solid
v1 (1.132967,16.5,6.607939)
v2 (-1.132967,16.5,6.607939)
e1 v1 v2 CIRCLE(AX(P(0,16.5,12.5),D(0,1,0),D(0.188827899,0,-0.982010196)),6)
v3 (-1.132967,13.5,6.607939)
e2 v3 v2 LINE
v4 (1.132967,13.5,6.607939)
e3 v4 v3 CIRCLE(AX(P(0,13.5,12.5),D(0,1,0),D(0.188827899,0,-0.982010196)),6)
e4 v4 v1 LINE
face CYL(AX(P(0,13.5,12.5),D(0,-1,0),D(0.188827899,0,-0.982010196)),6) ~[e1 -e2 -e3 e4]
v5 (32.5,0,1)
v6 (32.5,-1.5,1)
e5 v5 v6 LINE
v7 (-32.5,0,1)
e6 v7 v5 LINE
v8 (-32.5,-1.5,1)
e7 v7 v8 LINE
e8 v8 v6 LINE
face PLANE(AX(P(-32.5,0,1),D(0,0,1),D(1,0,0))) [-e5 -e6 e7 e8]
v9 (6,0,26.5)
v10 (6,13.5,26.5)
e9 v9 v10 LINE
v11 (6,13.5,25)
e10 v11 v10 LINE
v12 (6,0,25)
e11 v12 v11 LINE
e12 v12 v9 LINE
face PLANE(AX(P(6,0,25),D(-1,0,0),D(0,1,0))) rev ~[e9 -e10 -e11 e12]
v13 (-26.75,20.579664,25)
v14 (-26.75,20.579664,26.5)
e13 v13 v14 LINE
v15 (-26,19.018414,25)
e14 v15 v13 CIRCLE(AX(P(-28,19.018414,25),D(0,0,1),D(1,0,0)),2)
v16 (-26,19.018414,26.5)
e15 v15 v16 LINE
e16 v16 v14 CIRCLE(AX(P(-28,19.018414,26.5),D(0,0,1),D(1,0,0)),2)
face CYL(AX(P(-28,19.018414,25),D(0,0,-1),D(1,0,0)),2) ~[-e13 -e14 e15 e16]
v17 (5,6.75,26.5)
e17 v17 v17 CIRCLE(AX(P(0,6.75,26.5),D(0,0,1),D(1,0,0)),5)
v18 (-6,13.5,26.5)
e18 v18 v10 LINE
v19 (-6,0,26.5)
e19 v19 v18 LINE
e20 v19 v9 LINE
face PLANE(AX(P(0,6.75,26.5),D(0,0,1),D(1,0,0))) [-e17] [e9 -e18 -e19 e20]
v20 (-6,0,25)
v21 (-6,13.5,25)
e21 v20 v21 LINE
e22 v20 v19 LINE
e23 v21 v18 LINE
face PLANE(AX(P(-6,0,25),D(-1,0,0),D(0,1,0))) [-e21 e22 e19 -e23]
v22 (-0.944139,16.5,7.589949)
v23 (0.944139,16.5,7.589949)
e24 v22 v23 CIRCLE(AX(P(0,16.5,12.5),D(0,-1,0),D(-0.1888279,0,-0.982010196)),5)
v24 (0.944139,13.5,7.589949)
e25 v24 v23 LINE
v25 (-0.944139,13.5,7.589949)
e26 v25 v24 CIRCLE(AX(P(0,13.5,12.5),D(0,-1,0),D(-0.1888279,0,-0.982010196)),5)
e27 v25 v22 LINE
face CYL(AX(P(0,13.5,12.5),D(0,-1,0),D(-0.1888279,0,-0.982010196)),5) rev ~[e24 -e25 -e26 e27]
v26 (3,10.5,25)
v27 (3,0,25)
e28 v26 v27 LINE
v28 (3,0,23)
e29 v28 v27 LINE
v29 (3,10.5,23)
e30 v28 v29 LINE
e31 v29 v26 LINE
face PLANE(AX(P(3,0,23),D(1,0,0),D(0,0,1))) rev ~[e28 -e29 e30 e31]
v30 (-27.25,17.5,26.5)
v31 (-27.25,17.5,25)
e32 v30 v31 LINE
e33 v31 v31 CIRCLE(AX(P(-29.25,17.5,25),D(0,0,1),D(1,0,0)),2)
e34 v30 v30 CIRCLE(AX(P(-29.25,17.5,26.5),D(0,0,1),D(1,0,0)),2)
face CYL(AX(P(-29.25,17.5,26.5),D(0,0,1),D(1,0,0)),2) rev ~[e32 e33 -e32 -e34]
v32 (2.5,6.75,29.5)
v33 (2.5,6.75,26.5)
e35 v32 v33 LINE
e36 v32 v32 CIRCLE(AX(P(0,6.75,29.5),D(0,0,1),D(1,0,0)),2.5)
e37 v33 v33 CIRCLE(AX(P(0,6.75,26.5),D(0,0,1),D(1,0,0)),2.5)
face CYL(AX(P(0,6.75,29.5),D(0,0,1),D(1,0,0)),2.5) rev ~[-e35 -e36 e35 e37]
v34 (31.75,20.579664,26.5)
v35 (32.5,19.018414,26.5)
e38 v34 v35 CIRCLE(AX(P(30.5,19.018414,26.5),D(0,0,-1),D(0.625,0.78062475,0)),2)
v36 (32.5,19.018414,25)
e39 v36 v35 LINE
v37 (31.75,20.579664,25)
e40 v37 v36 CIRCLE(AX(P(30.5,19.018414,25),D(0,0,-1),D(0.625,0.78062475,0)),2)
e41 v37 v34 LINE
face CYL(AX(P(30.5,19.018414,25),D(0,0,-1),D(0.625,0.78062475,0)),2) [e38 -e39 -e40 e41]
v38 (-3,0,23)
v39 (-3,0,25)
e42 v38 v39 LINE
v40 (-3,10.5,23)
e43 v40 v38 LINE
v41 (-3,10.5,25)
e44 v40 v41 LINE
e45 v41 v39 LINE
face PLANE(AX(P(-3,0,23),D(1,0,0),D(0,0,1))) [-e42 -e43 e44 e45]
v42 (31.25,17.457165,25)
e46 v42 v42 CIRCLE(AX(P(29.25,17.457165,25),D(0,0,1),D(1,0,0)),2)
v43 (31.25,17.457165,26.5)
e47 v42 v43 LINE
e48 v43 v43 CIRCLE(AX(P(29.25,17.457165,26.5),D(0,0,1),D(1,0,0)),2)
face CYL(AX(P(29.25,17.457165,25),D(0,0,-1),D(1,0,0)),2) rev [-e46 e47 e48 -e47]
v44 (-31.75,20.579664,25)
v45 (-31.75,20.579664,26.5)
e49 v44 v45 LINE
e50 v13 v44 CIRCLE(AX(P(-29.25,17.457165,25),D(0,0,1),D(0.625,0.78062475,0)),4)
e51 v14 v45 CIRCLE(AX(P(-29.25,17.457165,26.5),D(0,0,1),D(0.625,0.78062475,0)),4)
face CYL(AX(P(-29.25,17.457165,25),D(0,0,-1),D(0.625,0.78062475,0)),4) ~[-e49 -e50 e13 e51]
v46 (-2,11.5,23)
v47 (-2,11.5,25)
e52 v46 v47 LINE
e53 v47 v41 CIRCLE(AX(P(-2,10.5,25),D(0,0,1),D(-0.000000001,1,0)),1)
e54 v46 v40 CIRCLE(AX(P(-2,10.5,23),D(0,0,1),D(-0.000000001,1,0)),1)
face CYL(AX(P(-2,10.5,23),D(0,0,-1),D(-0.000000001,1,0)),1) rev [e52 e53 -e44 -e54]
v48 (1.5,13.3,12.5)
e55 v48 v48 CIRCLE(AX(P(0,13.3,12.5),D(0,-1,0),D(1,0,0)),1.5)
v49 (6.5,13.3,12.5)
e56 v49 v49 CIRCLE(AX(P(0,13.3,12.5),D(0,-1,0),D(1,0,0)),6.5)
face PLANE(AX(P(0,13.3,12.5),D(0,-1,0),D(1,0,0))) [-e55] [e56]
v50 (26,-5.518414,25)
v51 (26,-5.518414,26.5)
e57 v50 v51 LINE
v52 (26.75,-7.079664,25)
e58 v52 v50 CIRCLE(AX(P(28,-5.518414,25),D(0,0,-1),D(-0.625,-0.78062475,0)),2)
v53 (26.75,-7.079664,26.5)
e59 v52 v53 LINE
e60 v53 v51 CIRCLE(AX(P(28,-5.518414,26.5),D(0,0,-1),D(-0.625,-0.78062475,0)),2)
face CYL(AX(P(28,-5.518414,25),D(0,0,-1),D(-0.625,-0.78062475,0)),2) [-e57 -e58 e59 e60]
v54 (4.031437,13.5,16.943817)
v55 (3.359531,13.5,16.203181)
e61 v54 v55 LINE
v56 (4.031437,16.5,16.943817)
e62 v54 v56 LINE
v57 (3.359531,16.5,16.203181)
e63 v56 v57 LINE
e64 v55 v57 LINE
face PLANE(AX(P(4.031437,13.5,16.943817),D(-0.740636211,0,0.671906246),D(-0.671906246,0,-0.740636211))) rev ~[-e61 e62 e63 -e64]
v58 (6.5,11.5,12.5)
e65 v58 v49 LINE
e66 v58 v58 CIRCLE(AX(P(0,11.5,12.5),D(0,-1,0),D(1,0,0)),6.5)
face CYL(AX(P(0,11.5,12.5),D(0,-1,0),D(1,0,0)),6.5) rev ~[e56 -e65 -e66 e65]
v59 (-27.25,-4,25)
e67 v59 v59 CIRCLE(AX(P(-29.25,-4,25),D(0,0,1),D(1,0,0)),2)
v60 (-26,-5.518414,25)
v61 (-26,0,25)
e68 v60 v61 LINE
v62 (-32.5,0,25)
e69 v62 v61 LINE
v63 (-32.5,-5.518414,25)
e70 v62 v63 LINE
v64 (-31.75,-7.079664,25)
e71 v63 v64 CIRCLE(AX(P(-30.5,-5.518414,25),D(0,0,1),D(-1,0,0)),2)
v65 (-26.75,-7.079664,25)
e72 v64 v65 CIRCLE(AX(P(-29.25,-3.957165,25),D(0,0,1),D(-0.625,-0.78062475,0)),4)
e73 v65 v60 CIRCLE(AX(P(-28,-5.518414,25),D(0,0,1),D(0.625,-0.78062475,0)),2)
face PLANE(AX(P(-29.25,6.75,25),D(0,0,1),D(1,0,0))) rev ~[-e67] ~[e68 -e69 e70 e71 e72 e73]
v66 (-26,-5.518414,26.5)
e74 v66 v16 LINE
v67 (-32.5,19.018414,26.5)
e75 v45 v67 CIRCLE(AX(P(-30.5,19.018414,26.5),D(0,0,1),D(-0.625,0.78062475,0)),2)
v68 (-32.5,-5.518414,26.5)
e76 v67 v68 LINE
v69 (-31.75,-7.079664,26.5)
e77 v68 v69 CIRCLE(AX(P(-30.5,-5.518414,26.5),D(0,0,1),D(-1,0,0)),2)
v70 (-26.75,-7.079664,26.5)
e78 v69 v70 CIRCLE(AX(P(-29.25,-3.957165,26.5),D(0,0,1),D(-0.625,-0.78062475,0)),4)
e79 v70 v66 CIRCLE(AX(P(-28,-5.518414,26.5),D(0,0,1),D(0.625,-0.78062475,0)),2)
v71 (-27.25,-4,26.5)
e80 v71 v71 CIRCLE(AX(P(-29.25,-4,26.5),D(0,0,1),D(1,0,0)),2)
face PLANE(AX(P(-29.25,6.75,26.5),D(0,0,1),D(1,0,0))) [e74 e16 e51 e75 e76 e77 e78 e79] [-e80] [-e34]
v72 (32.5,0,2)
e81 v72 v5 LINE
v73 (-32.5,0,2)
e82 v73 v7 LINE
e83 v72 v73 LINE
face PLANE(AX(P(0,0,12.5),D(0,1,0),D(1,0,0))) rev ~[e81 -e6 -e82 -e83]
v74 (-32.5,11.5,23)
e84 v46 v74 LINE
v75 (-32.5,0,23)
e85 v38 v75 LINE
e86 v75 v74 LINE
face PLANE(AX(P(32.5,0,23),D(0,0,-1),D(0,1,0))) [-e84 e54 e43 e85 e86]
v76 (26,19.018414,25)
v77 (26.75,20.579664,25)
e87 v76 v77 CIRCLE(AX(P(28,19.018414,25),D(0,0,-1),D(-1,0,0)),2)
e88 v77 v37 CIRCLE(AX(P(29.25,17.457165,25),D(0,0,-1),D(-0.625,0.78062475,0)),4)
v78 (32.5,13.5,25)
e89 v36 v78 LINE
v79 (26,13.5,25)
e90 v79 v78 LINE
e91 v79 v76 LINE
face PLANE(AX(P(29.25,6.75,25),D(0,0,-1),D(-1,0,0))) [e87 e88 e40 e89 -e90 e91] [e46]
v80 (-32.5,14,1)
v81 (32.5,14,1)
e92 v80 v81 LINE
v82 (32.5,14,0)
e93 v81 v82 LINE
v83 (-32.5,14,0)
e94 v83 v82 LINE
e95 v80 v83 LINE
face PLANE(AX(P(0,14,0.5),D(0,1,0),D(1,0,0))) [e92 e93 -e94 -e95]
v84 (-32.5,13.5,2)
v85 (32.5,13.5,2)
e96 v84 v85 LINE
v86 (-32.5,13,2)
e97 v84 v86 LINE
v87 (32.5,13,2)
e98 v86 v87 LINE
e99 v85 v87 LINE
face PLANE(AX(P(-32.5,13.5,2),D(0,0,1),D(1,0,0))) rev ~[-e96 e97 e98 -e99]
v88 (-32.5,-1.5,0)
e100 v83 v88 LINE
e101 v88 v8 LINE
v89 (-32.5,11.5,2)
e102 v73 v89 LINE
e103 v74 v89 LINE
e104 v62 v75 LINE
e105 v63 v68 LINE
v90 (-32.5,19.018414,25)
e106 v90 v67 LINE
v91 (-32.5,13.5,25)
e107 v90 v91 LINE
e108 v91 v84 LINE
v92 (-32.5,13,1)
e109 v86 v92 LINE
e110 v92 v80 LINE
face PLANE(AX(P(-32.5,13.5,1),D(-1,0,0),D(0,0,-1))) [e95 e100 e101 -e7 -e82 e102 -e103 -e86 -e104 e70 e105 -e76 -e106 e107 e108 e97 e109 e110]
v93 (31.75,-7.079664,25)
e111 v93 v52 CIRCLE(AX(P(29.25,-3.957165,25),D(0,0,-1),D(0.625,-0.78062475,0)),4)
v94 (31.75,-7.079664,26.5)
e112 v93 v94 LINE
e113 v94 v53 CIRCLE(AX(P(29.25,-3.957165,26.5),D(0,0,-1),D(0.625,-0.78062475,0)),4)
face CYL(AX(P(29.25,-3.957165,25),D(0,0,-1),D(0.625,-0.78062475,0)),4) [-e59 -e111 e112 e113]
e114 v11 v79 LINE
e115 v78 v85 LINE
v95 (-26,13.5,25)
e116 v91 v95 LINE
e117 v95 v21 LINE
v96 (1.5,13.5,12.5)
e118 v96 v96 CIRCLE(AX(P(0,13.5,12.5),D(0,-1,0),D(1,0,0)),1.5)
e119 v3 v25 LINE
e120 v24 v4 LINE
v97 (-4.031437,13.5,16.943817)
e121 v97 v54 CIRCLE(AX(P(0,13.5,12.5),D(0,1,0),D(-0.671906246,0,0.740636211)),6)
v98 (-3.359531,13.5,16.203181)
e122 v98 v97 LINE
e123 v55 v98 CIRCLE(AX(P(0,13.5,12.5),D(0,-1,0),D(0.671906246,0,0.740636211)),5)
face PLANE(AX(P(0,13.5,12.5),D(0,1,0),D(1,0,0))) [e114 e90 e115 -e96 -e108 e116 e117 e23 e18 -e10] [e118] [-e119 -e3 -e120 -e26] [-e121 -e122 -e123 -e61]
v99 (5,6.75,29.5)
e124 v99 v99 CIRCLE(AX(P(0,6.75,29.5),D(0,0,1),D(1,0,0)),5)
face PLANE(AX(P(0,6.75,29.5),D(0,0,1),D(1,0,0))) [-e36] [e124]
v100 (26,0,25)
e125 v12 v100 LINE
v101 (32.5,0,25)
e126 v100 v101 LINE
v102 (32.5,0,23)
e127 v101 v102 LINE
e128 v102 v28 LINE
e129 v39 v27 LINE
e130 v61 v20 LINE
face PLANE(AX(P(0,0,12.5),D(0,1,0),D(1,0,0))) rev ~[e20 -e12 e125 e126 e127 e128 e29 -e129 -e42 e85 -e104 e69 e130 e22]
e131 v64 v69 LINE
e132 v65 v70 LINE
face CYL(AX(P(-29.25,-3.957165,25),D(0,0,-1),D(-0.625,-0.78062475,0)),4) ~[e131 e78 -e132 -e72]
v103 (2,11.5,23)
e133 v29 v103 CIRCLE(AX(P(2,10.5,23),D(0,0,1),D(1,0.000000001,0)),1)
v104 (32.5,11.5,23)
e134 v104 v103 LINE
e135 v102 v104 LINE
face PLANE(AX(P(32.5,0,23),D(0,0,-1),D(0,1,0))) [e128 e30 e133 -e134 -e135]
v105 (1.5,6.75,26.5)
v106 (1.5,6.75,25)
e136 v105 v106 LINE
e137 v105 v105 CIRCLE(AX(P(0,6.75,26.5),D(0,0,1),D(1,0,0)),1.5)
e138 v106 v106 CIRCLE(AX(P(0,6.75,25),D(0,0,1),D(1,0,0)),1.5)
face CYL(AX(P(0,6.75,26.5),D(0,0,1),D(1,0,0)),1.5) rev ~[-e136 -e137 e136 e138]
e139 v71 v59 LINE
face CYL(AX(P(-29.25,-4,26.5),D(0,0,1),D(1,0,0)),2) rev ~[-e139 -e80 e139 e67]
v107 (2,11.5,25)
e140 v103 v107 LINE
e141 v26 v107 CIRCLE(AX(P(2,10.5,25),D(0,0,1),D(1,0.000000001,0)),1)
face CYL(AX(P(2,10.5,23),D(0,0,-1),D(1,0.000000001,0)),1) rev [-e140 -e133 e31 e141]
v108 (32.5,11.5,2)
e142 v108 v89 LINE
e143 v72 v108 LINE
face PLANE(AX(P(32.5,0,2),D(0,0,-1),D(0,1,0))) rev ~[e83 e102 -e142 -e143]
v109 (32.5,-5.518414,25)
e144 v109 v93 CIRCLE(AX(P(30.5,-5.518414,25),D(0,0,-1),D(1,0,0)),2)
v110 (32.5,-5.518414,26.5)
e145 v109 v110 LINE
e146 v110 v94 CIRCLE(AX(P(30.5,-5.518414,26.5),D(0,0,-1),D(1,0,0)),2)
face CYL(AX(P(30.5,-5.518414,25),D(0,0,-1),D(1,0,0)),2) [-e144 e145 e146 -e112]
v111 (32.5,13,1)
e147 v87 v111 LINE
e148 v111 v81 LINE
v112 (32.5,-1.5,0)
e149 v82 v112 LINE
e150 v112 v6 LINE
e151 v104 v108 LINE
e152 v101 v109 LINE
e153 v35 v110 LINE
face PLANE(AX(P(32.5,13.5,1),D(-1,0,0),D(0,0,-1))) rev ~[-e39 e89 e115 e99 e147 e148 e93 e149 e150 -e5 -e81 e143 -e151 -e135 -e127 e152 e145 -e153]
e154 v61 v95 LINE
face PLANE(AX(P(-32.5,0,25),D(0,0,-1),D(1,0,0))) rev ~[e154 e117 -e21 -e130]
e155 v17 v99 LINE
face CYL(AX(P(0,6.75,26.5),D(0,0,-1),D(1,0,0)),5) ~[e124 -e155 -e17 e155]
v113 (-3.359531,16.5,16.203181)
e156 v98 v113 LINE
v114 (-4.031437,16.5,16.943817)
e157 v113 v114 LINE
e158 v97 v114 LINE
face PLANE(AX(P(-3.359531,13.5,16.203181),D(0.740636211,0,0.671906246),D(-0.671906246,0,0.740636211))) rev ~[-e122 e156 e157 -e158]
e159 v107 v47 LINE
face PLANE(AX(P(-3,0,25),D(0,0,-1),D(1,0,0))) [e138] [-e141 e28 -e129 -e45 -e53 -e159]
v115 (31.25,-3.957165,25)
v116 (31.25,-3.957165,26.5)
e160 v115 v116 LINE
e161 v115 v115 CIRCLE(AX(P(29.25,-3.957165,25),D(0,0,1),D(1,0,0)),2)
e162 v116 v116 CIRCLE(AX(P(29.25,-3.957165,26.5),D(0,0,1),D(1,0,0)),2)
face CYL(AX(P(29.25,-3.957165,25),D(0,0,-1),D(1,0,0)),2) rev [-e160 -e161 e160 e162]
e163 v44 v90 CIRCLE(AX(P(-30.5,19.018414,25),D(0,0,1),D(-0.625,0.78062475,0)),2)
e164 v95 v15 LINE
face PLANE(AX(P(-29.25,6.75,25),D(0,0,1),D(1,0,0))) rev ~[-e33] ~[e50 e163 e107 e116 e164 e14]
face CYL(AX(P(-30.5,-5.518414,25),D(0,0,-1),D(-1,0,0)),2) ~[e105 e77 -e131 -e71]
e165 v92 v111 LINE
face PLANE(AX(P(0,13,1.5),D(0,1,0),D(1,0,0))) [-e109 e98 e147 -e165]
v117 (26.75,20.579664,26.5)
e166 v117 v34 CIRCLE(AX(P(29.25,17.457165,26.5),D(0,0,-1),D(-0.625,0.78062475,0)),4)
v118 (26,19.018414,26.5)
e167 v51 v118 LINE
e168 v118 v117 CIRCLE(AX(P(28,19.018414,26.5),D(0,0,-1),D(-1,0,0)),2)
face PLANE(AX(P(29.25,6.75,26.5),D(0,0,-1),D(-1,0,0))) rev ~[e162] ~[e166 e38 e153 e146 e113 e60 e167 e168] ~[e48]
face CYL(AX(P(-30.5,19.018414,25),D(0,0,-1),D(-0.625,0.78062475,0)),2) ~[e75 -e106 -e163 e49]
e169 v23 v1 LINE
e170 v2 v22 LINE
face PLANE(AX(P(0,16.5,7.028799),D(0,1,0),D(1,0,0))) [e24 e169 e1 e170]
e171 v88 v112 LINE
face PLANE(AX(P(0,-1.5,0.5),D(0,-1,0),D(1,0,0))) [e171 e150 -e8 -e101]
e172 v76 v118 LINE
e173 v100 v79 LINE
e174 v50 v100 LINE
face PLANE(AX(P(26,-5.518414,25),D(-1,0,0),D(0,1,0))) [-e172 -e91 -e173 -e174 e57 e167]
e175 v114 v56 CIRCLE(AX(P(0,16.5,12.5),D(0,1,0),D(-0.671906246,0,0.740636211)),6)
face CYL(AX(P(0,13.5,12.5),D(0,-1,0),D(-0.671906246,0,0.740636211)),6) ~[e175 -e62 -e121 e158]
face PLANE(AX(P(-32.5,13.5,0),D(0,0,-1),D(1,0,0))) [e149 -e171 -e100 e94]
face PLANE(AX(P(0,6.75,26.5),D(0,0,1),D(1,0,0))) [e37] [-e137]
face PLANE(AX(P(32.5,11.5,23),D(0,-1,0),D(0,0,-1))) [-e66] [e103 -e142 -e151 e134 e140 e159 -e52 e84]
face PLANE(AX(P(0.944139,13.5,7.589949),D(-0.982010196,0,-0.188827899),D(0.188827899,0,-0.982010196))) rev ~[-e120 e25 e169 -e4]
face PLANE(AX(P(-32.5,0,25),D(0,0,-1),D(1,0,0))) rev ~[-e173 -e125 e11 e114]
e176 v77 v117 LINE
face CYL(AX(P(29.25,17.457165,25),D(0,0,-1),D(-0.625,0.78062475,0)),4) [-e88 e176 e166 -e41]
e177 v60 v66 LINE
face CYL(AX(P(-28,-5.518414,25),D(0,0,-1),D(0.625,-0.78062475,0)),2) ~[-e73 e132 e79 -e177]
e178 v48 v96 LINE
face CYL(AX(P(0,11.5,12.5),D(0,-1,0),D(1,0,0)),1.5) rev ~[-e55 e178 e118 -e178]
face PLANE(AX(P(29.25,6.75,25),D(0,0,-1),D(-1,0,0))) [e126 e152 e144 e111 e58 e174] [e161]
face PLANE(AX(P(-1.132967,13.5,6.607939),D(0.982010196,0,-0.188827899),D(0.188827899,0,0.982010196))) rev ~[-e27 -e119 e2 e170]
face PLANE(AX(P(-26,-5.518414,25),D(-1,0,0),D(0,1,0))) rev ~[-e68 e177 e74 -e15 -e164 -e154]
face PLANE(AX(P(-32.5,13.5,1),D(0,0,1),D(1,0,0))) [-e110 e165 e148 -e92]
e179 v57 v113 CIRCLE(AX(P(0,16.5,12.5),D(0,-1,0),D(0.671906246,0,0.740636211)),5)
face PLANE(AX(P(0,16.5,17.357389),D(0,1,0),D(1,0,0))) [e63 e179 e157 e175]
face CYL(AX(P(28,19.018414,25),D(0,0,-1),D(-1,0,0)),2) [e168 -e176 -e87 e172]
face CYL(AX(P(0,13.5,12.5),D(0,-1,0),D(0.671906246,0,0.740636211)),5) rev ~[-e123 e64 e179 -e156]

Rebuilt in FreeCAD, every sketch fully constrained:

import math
import FreeCAD as App
import Part
import Sketcher

V = App.Vector


def add_polygon(sketch, points):
    """Adds a closed chain of lines whose ends are joined by coincident constraints."""
    first, n = sketch.GeometryCount, len(points)
    for a, b in zip(points, points[1:] + points[:1]):
        sketch.addGeometry(Part.LineSegment(App.Vector(*a, 0), App.Vector(*b, 0)), False)
    for i in range(n):
        sketch.addConstraint(Sketcher.Constraint("Coincident", first + i, 2, first + (i + 1) % n, 1))

doc = App.newDocument("Part")
params = doc.addObject("Spreadsheet::Sheet", "Params")
for row, (alias, value) in enumerate([
    ("sketch1_width", "65 mm"),
    ("sketch1_height", "25 mm"),
    ("pad1_length", "13.5 mm"),
    ("sketch2_height", "21 mm"),
    ("sketch2_width", "11.5 mm"),
    ("pocket1_length", "65 mm"),
    ("sketch3_diameter", "4 mm"),
    ("sketch3_radius", "4 mm"),
    ("pad2_length", "1.5 mm"),
    ("sketch4_width", "12 mm"),
    ("sketch4_height", "13.5 mm"),
    ("pad3_length", "1.5 mm"),
    ("sketch5_diameter", "10 mm"),
    ("pad4_length", "3 mm"),
    ("sketch6_diameter", "5 mm"),
    ("pocket2_length", "3 mm"),
    ("sketch7_width", "6 mm"),
    ("sketch7_height", "2 mm"),
    ("pocket3_length", "10 mm"),
    ("sketch8_diameter", "3 mm"),
    ("pocket4_length", "10 mm"),
    ("sketch9_diameter", "4 mm"),
    ("pocket5_length", "10 mm"),
    ("sketch10_radius", "1 mm"),
    ("sketch10_width", "6 mm"),
    ("sketch10_height", "0.5 mm"),
    ("pocket6_length", "2 mm"),
    ("sketch11_diameter", "3 mm"),
    ("pocket7_length", "2 mm"),
    ("sketch12_diameter", "13 mm"),
    ("pocket8_length", "1.8 mm"),
    ("sketch13_radius", "6 mm"),
    ("sketch13_radius2", "5 mm"),
    ("pad5_length", "3 mm"),
    ("sketch14_width", "65 mm"),
    ("sketch14_height", "1 mm"),
    ("pad6_length", "1.5 mm"),
    ("sketch15_width", "65 mm"),
    ("sketch15_height", "1 mm"),
    ("pad7_length", "0.5 mm"),
    ("sketch16_width", "65 mm"),
    ("sketch16_height", "1 mm"),
    ("pocket9_length", "0.5 mm"),
], start=1):
    params.set(f"A{row}", alias)
    params.set(f"B{row}", "=" + value)
    params.setAlias(f"B{row}", alias)

body = doc.addObject("PartDesign::Body", "Body")

sketch1 = body.newObject("Sketcher::SketchObject", "Sketch")
sketch1.AttachmentSupport = (doc.getObject("XZ_Plane"), [""])
sketch1.MapMode = "FlatFace"
add_polygon(sketch1, [(-32, 0), (-32, 25), (32, 25), (32, 0)])
sketch1.addConstraint([
    Sketcher.Constraint("Vertical", 0),
    Sketcher.Constraint("Horizontal", 1),
    Sketcher.Constraint("Vertical", 2),
    Sketcher.Constraint("Horizontal", 3),
    Sketcher.Constraint("Symmetric", 2, 2, 3, 2, -1, 1),
    Sketcher.Constraint("DistanceX", 1, 1, 1, 2, 65.0),
    Sketcher.Constraint("DistanceY", 0, 1, 0, 2, 25.0),
])
sketch1.setExpression("Constraints[9]", "Params.sketch1_width")
sketch1.setExpression("Constraints[10]", "Params.sketch1_height")
pad1 = body.newObject("PartDesign::Pad", "Pad")
pad1.Profile = sketch1
pad1.setExpression("Length", "Params.pad1_length")
pad1.Reversed = True

sketch2 = body.newObject("Sketcher::SketchObject", "Sketch001")
sketch2.AttachmentSupport = (doc.getObject("YZ_Plane"), [""])
sketch2.MapMode = "FlatFace"
sketch2.AttachmentOffset = App.Placement(V(0, 0, 32.5), App.Rotation())
add_polygon(sketch2, [(12, 23), (0, 23), (0, 2), (12, 2)])
sketch2.addConstraint([
    Sketcher.Constraint("Horizontal", 0),
    Sketcher.Constraint("Vertical", 1),
    Sketcher.Constraint("Horizontal", 2),
    Sketcher.Constraint("Vertical", 3),
    Sketcher.Constraint("PointOnObject", 0, 2, -2),
    Sketcher.Constraint("DistanceY", 1, 2, 1, 1, 21.0),
    Sketcher.Constraint("DistanceX", 0, 2, 0, 1, 11.5),
    Sketcher.Constraint("DistanceY", -1, 1, 0, 2, 23.0),
])
sketch2.setExpression("Constraints[9]", "Params.sketch2_height")
sketch2.setExpression("Constraints[10]", "Params.sketch2_width")
pocket1 = body.newObject("PartDesign::Pocket", "Pocket")
pocket1.Profile = sketch2
pocket1.setExpression("Length", "Params.pocket1_length")

sketch3 = body.newObject("Sketcher::SketchObject", "Sketch002")
sketch3.AttachmentSupport = (doc.getObject("XY_Plane"), [""])
sketch3.MapMode = "FlatFace"
sketch3.AttachmentOffset = App.Placement(V(0, 0, 25), App.Rotation())
sketch3.addGeometry([
    Part.ArcOfCircle(Part.Circle(V(30.5, -5.5, 0), V(0, 0, 1), 2), math.radians(-51), math.radians(0)),
    Part.LineSegment(V(32.5, -5.5, 0), V(32.5, 19, 0)),
    Part.ArcOfCircle(Part.Circle(V(30.5, 19, 0), V(0, 0, 1), 2), math.radians(0), math.radians(51)),
    Part.ArcOfCircle(Part.Circle(V(29.2, 17.5, 0), V(0, 0, 1), 4), math.radians(51), math.radians(129)),
    Part.ArcOfCircle(Part.Circle(V(28, 19, 0), V(0, 0, 1), 2), math.radians(129), math.radians(180)),
    Part.LineSegment(V(26, 19, 0), V(26, -5.5, 0)),
    Part.ArcOfCircle(Part.Circle(V(28, -5.5, 0), V(0, 0, 1), 2), math.radians(180), math.radians(231)),
    Part.ArcOfCircle(Part.Circle(V(29.2, -4, 0), V(0, 0, 1), 4), math.radians(-129), math.radians(-51)),
    Part.Circle(V(29.2, -4, 0), V(0, 0, 1), 2),
    Part.Circle(V(29.2, 17.5, 0), V(0, 0, 1), 2),
    Part.ArcOfCircle(Part.Circle(V(-30.5, -5.5, 0), V(0, 0, 1), 2), math.radians(180), math.radians(231)),
    Part.ArcOfCircle(Part.Circle(V(-29.2, -4, 0), V(0, 0, 1), 4), math.radians(-129), math.radians(-51)),
    Part.ArcOfCircle(Part.Circle(V(-28, -5.5, 0), V(0, 0, 1), 2), math.radians(-51), math.radians(0)),
    Part.LineSegment(V(-26, -5.5, 0), V(-26, 19, 0)),
    Part.ArcOfCircle(Part.Circle(V(-28, 19, 0), V(0, 0, 1), 2), math.radians(0), math.radians(51)),
    Part.ArcOfCircle(Part.Circle(V(-29.2, 17.5, 0), V(0, 0, 1), 4), math.radians(51), math.radians(129)),
    Part.ArcOfCircle(Part.Circle(V(-30.5, 19, 0), V(0, 0, 1), 2), math.radians(129), math.radians(180)),
    Part.LineSegment(V(-32.5, 19, 0), V(-32.5, -5.5, 0)),
], False)
sketch3.addConstraint([
    Sketcher.Constraint("Tangent", 0, 2, 1, 1),
    Sketcher.Constraint("Tangent", 1, 2, 2, 1),
    Sketcher.Constraint("Tangent", 2, 2, 3, 1),
    Sketcher.Constraint("Tangent", 3, 2, 4, 1),
    Sketcher.Constraint("Tangent", 4, 2, 5, 1),
    Sketcher.Constraint("Tangent", 5, 2, 6, 1),
    Sketcher.Constraint("Tangent", 6, 2, 7, 1),
    Sketcher.Constraint("Tangent", 7, 2, 0, 1),
    Sketcher.Constraint("Tangent", 10, 2, 11, 1),
    Sketcher.Constraint("Tangent", 11, 2, 12, 1),
    Sketcher.Constraint("Tangent", 12, 2, 13, 1),
    Sketcher.Constraint("Tangent", 13, 2, 14, 1),
    Sketcher.Constraint("Tangent", 14, 2, 15, 1),
    Sketcher.Constraint("Tangent", 15, 2, 16, 1),
    Sketcher.Constraint("Tangent", 16, 2, 17, 1),
    Sketcher.Constraint("Tangent", 17, 2, 10, 1),
    Sketcher.Constraint("Vertical", 1),
    Sketcher.Constraint("Vertical", 5),
    Sketcher.Constraint("Vertical", 13),
    Sketcher.Constraint("Vertical", 17),
    Sketcher.Constraint("Coincident", 8, 3, 7, 3),
    Sketcher.Constraint("Coincident", 9, 3, 3, 3),
    Sketcher.Constraint("Equal", 0, 2),
    Sketcher.Constraint("Equal", 2, 4),
    Sketcher.Constraint("Equal", 4, 6),
    Sketcher.Constraint("Equal", 3, 7),
    Sketcher.Constraint("Equal", 6, 8),
    Sketcher.Constraint("Equal", 8, 9),
    Sketcher.Constraint("Equal", 9, 10),
    Sketcher.Constraint("Equal", 7, 11),
    Sketcher.Constraint("Equal", 10, 12),
    Sketcher.Constraint("Equal", 12, 14),
    Sketcher.Constraint("Equal", 11, 15),
    Sketcher.Constraint("Equal", 14, 16),
    Sketcher.Constraint("Symmetric", 0, 3, 10, 3, -2),
    Sketcher.Constraint("Symmetric", 6, 3, 12, 3, -2),
    Sketcher.Constraint("Symmetric", 3, 3, 15, 3, -2),
    Sketcher.Constraint("Horizontal", 2, 3, 4, 3),
    Sketcher.Constraint("Horizontal", 0, 3, 6, 3),
    Sketcher.Constraint("Diameter", 8, 4.0),
    Sketcher.Constraint("Radius", 3, 4.0),
    Sketcher.Constraint("DistanceX", -1, 1, 4, 3, 28.0),
    Sketcher.Constraint("DistanceX", 10, 3, 0, 3, 61.0),
    Sketcher.Constraint("DistanceY", 1, 1, 1, 2, 24.536828),
    Sketcher.Constraint("DistanceY", 0, 3, -1, 1, 5.518414),
])
sketch3.setExpression("Constraints[39]", "Params.sketch3_diameter")
sketch3.setExpression("Constraints[40]", "Params.sketch3_radius")
pad2 = body.newObject("PartDesign::Pad", "Pad001")
pad2.Profile = sketch3
pad2.setExpression("Length", "Params.pad2_length")

sketch4 = body.newObject("Sketcher::SketchObject", "Sketch003")
sketch4.AttachmentSupport = (doc.getObject("XY_Plane"), [""])
sketch4.MapMode = "FlatFace"
sketch4.AttachmentOffset = App.Placement(V(0, 0, 25), App.Rotation())
add_polygon(sketch4, [(-6, 14), (-6, 0), (6, 0), (6, 14)])
sketch4.addConstraint([
    Sketcher.Constraint("Vertical", 0),
    Sketcher.Constraint("Horizontal", 1),
    Sketcher.Constraint("Vertical", 2),
    Sketcher.Constraint("Horizontal", 3),
    Sketcher.Constraint("Symmetric", 0, 2, 1, 2, -1, 1),
    Sketcher.Constraint("DistanceX", 1, 1, 1, 2, 12.0),
    Sketcher.Constraint("DistanceY", 0, 2, 0, 1, 13.5),
])
sketch4.setExpression("Constraints[9]", "Params.sketch4_width")
sketch4.setExpression("Constraints[10]", "Params.sketch4_height")
pad3 = body.newObject("PartDesign::Pad", "Pad002")
pad3.Profile = sketch4
pad3.setExpression("Length", "Params.pad3_length")

sketch5 = body.newObject("Sketcher::SketchObject", "Sketch004")
sketch5.AttachmentSupport = (doc.getObject("XY_Plane"), [""])
sketch5.MapMode = "FlatFace"
sketch5.AttachmentOffset = App.Placement(V(0, 0, 26.5), App.Rotation())
sketch5.addGeometry(Part.Circle(V(0, 7, 0), V(0, 0, 1), 5), False)
sketch5.addConstraint([
    Sketcher.Constraint("PointOnObject", 0, 3, -2),
    Sketcher.Constraint("Diameter", 0, 10.0),
    Sketcher.Constraint("DistanceY", -1, 1, 0, 3, 6.75),
])
sketch5.setExpression("Constraints[1]", "Params.sketch5_diameter")
pad4 = body.newObject("PartDesign::Pad", "Pad003")
pad4.Profile = sketch5
pad4.setExpression("Length", "Params.pad4_length")

sketch6 = body.newObject("Sketcher::SketchObject", "Sketch005")
sketch6.AttachmentSupport = (doc.getObject("XY_Plane"), [""])
sketch6.MapMode = "FlatFace"
sketch6.AttachmentOffset = App.Placement(V(0, 0, 29.5), App.Rotation())
sketch6.addGeometry(Part.Circle(V(0, 6.8, 0), V(0, 0, 1), 2.5), False)
sketch6.addConstraint([
    Sketcher.Constraint("PointOnObject", 0, 3, -2),
    Sketcher.Constraint("Diameter", 0, 5.0),
    Sketcher.Constraint("DistanceY", -1, 1, 0, 3, 6.75),
])
sketch6.setExpression("Constraints[1]", "Params.sketch6_diameter")
pocket2 = body.newObject("PartDesign::Pocket", "Pocket001")
pocket2.Profile = sketch6
pocket2.setExpression("Length", "Params.pocket2_length")

sketch7 = body.newObject("Sketcher::SketchObject", "Sketch006")
sketch7.AttachmentSupport = (doc.getObject("XZ_Plane"), [""])
sketch7.MapMode = "FlatFace"
add_polygon(sketch7, [(-3, 25), (-3, 23), (3, 23), (3, 25)])
sketch7.addConstraint([
    Sketcher.Constraint("Vertical", 0),
    Sketcher.Constraint("Horizontal", 1),
    Sketcher.Constraint("Vertical", 2),
    Sketcher.Constraint("Horizontal", 3),
    Sketcher.Constraint("DistanceX", 1, 1, 1, 2, 6.0),
    Sketcher.Constraint("DistanceY", 0, 2, 0, 1, 2.0),
    Sketcher.Constraint("DistanceX", 0, 2, -1, 1, 3.0),
    Sketcher.Constraint("DistanceY", -1, 1, 0, 2, 23.0),
])
sketch7.setExpression("Constraints[8]", "Params.sketch7_width")
sketch7.setExpression("Constraints[9]", "Params.sketch7_height")
pocket3 = body.newObject("PartDesign::Pocket", "Pocket002")
pocket3.Profile = sketch7
pocket3.setExpression("Length", "Params.pocket3_length")

sketch8 = body.newObject("Sketcher::SketchObject", "Sketch007")
sketch8.AttachmentSupport = (doc.getObject("XY_Plane"), [""])
sketch8.MapMode = "FlatFace"
sketch8.AttachmentOffset = App.Placement(V(0, 0, 26.5), App.Rotation())
sketch8.addGeometry(Part.Circle(V(0, 6.8, 0), V(0, 0, 1), 1.5), False)
sketch8.addConstraint([
    Sketcher.Constraint("PointOnObject", 0, 3, -2),
    Sketcher.Constraint("Diameter", 0, 3.0),
    Sketcher.Constraint("DistanceY", -1, 1, 0, 3, 6.75),
])
sketch8.setExpression("Constraints[1]", "Params.sketch8_diameter")
pocket4 = body.newObject("PartDesign::Pocket", "Pocket003")
pocket4.Profile = sketch8
pocket4.setExpression("Length", "Params.pocket4_length")

sketch9 = body.newObject("Sketcher::SketchObject", "Sketch008")
sketch9.AttachmentSupport = (doc.getObject("XY_Plane"), [""])
sketch9.MapMode = "FlatFace"
sketch9.AttachmentOffset = App.Placement(V(0, 0, 26.5), App.Rotation())
sketch9.addGeometry([
    Part.Circle(V(-29.2, 17.5, 0), V(0, 0, 1), 2),
    Part.Circle(V(-29.2, -4, 0), V(0, 0, 1), 2),
], False)
sketch9.addConstraint([
    Sketcher.Constraint("Equal", 0, 1),
    Sketcher.Constraint("Vertical", 0, 3, 1, 3),
    Sketcher.Constraint("Diameter", 0, 4.0),
    Sketcher.Constraint("DistanceY", 1, 3, -1, 1, 4.0),
    Sketcher.Constraint("DistanceY", -1, 1, 0, 3, 17.5),
    Sketcher.Constraint("DistanceX", 0, 3, -1, 1, 29.25),
])
sketch9.setExpression("Constraints[2]", "Params.sketch9_diameter")
pocket5 = body.newObject("PartDesign::Pocket", "Pocket004")
pocket5.Profile = sketch9
pocket5.setExpression("Length", "Params.pocket5_length")

sketch10 = body.newObject("Sketcher::SketchObject", "Sketch009")
sketch10.AttachmentSupport = (doc.getObject("XY_Plane"), [""])
sketch10.MapMode = "FlatFace"
sketch10.AttachmentOffset = App.Placement(V(0, 0, 23), App.Rotation())
sketch10.addGeometry([
    Part.LineSegment(V(3, 10.5, 0), V(3, 10, 0)),
    Part.LineSegment(V(3, 10, 0), V(-3, 10, 0)),
    Part.LineSegment(V(-3, 10, 0), V(-3, 10.5, 0)),
    Part.ArcOfCircle(Part.Circle(V(-2, 10.5, 0), V(0, 0, 1), 1), math.radians(90), math.radians(180)),
    Part.LineSegment(V(-2, 11.5, 0), V(2, 11.5, 0)),
    Part.ArcOfCircle(Part.Circle(V(2, 10.5, 0), V(0, 0, 1), 1), math.radians(0), math.radians(90)),
], False)
sketch10.addConstraint([
    Sketcher.Constraint("Coincident", 0, 2, 1, 1),
    Sketcher.Constraint("Coincident", 1, 2, 2, 1),
    Sketcher.Constraint("Tangent", 2, 2, 3, 2),
    Sketcher.Constraint("Tangent", 3, 1, 4, 1),
    Sketcher.Constraint("Tangent", 4, 2, 5, 2),
    Sketcher.Constraint("Tangent", 5, 1, 0, 1),
    Sketcher.Constraint("Vertical", 0),
    Sketcher.Constraint("Horizontal", 1),
    Sketcher.Constraint("Vertical", 2),
    Sketcher.Constraint("Horizontal", 4),
    Sketcher.Constraint("Equal", 3, 5),
    Sketcher.Constraint("Radius", 3, 1.0),
    Sketcher.Constraint("DistanceX", 1, 2, 1, 1, 6.0),
    Sketcher.Constraint("DistanceY", 0, 2, 0, 1, 0.5),
    Sketcher.Constraint("DistanceX", 3, 3, -1, 1, 2.0),
    Sketcher.Constraint("DistanceY", -1, 1, 0, 2, 10.0),
])
sketch10.setExpression("Constraints[11]", "Params.sketch10_radius")
sketch10.setExpression("Constraints[12]", "Params.sketch10_width")
sketch10.setExpression("Constraints[13]", "Params.sketch10_height")
pocket6 = body.newObject("PartDesign::Pocket", "Pocket005")
pocket6.Profile = sketch10
pocket6.setExpression("Length", "Params.pocket6_length")
pocket6.Reversed = True

sketch11 = body.newObject("Sketcher::SketchObject", "Sketch010")
sketch11.AttachmentSupport = (doc.getObject("XZ_Plane"), [""])
sketch11.MapMode = "FlatFace"
sketch11.AttachmentOffset = App.Placement(V(0, 0, -11.5), App.Rotation())
sketch11.addGeometry(Part.Circle(V(0, 12.5, 0), V(0, 0, 1), 1.5), False)
sketch11.addConstraint([
    Sketcher.Constraint("PointOnObject", 0, 3, -2),
    Sketcher.Constraint("Diameter", 0, 3.0),
    Sketcher.Constraint("DistanceY", -1, 1, 0, 3, 12.5),
])
sketch11.setExpression("Constraints[1]", "Params.sketch11_diameter")
pocket7 = body.newObject("PartDesign::Pocket", "Pocket006")
pocket7.Profile = sketch11
pocket7.setExpression("Length", "Params.pocket7_length")

sketch12 = body.newObject("Sketcher::SketchObject", "Sketch011")
sketch12.AttachmentSupport = (doc.getObject("XZ_Plane"), [""])
sketch12.MapMode = "FlatFace"
sketch12.AttachmentOffset = App.Placement(V(0, 0, -11.5), App.Rotation())
sketch12.addGeometry(Part.Circle(V(0, 12, 0), V(0, 0, 1), 6), False)
sketch12.addConstraint([
    Sketcher.Constraint("PointOnObject", 0, 3, -2),
    Sketcher.Constraint("Diameter", 0, 13.0),
    Sketcher.Constraint("DistanceY", -1, 1, 0, 3, 12.5),
])
sketch12.setExpression("Constraints[1]", "Params.sketch12_diameter")
pocket8 = body.newObject("PartDesign::Pocket", "Pocket007")
pocket8.Profile = sketch12
pocket8.setExpression("Length", "Params.pocket8_length")

sketch13 = body.newObject("Sketcher::SketchObject", "Sketch012")
sketch13.AttachmentSupport = (doc.getObject("XZ_Plane"), [""])
sketch13.MapMode = "FlatFace"
sketch13.AttachmentOffset = App.Placement(V(0, 0, -13.5), App.Rotation())
sketch13.addGeometry([
    Part.LineSegment(V(-3.4, 16.2, 0), V(-4, 16.9, 0)),
    Part.ArcOfCircle(Part.Circle(V(0, 12.5, 0), V(0, 0, 1), 6), math.radians(48), math.radians(132)),
    Part.LineSegment(V(4, 16.9, 0), V(3.4, 16.2, 0)),
    Part.ArcOfCircle(Part.Circle(V(0, 12.5, 0), V(0, 0, 1), 5), math.radians(48), math.radians(132)),
    Part.LineSegment(V(-1.1, 6.6, 0), V(-0.9, 7.6, 0)),
    Part.ArcOfCircle(Part.Circle(V(0, 12.5, 0), V(0, 0, 1), 5), math.radians(-101), math.radians(-79)),
    Part.LineSegment(V(0.9, 7.6, 0), V(1.1, 6.6, 0)),
    Part.ArcOfCircle(Part.Circle(V(0, 12.5, 0), V(0, 0, 1), 6), math.radians(-101), math.radians(-79)),
], False)
sketch13.addConstraint([
    Sketcher.Constraint("Coincident", 0, 2, 1, 2),
    Sketcher.Constraint("Coincident", 1, 1, 2, 1),
    Sketcher.Constraint("Coincident", 2, 2, 3, 1),
    Sketcher.Constraint("Coincident", 3, 2, 0, 1),
    Sketcher.Constraint("Coincident", 4, 2, 5, 1),
    Sketcher.Constraint("Coincident", 5, 2, 6, 1),
    Sketcher.Constraint("Coincident", 6, 2, 7, 2),
    Sketcher.Constraint("Coincident", 7, 1, 4, 1),
    Sketcher.Constraint("Coincident", 3, 3, 1, 3),
    Sketcher.Constraint("Coincident", 5, 3, 1, 3),
    Sketcher.Constraint("Coincident", 7, 3, 1, 3),
    Sketcher.Constraint("Equal", 3, 5),
    Sketcher.Constraint("Equal", 1, 7),
    Sketcher.Constraint("Symmetric", 0, 2, 1, 1, -2),
    Sketcher.Constraint("Horizontal", 2, 2, 3, 2),
    Sketcher.Constraint("Horizontal", 4, 2, 5, 2),
    Sketcher.Constraint("Horizontal", 6, 2, 7, 1),
    Sketcher.Constraint("Radius", 1, 6.0),
    Sketcher.Constraint("Radius", 3, 5.0),
    Sketcher.Constraint("DistanceY", -1, 1, 1, 3, 12.5),
    Sketcher.Constraint("DistanceX", -1, 1, 2, 2, 3.359531),
    Sketcher.Constraint("DistanceX", 4, 2, -1, 1, 0.944139),
    Sketcher.Constraint("DistanceY", -1, 1, 6, 2, 6.607939),
    Sketcher.Constraint("DistanceX", 0, 2, -1, 1, 4.031437),
])
sketch13.setExpression("Constraints[17]", "Params.sketch13_radius")
sketch13.setExpression("Constraints[18]", "Params.sketch13_radius2")
pad5 = body.newObject("PartDesign::Pad", "Pad004")
pad5.Profile = sketch13
pad5.setExpression("Length", "Params.pad5_length")
pad5.Reversed = True

sketch14 = body.newObject("Sketcher::SketchObject", "Sketch013")
sketch14.AttachmentSupport = (doc.getObject("XZ_Plane"), [""])
sketch14.MapMode = "FlatFace"
add_polygon(sketch14, [(-32.5, 1), (-32.5, 0), (32.5, 0), (32.5, 1)])
sketch14.addConstraint([
    Sketcher.Constraint("Vertical", 0),
    Sketcher.Constraint("Horizontal", 1),
    Sketcher.Constraint("Vertical", 2),
    Sketcher.Constraint("Horizontal", 3),
    Sketcher.Constraint("Symmetric", 0, 2, 1, 2, -1, 1),
    Sketcher.Constraint("DistanceX", 1, 1, 1, 2, 65.0),
    Sketcher.Constraint("DistanceY", 0, 2, 0, 1, 1.0),
])
sketch14.setExpression("Constraints[9]", "Params.sketch14_width")
sketch14.setExpression("Constraints[10]", "Params.sketch14_height")
pad6 = body.newObject("PartDesign::Pad", "Pad005")
pad6.Profile = sketch14
pad6.setExpression("Length", "Params.pad6_length")

sketch15 = body.newObject("Sketcher::SketchObject", "Sketch014")
sketch15.AttachmentSupport = (doc.getObject("XZ_Plane"), [""])
sketch15.MapMode = "FlatFace"
sketch15.AttachmentOffset = App.Placement(V(0, 0, -13.5), App.Rotation())
add_polygon(sketch15, [(-32.5, 0), (-32.5, 1), (32.5, 1), (32.5, 0)])
sketch15.addConstraint([
    Sketcher.Constraint("Vertical", 0),
    Sketcher.Constraint("Horizontal", 1),
    Sketcher.Constraint("Vertical", 2),
    Sketcher.Constraint("Horizontal", 3),
    Sketcher.Constraint("Symmetric", 2, 2, 3, 2, -1, 1),
    Sketcher.Constraint("DistanceX", 1, 1, 1, 2, 65.0),
    Sketcher.Constraint("DistanceY", 0, 1, 0, 2, 1.0),
])
sketch15.setExpression("Constraints[9]", "Params.sketch15_width")
sketch15.setExpression("Constraints[10]", "Params.sketch15_height")
pad7 = body.newObject("PartDesign::Pad", "Pad006")
pad7.Profile = sketch15
pad7.setExpression("Length", "Params.pad7_length")
pad7.Reversed = True

sketch16 = body.newObject("Sketcher::SketchObject", "Sketch015")
sketch16.AttachmentSupport = (doc.getObject("XZ_Plane"), [""])
sketch16.MapMode = "FlatFace"
sketch16.AttachmentOffset = App.Placement(V(0, 0, -13.5), App.Rotation())
add_polygon(sketch16, [(-32.5, 1), (-32.5, 2), (32.5, 2), (32.5, 1)])
sketch16.addConstraint([
    Sketcher.Constraint("Vertical", 0),
    Sketcher.Constraint("Horizontal", 1),
    Sketcher.Constraint("Vertical", 2),
    Sketcher.Constraint("Horizontal", 3),
    Sketcher.Constraint("DistanceX", 1, 1, 1, 2, 65.0),
    Sketcher.Constraint("DistanceY", 0, 1, 0, 2, 1.0),
    Sketcher.Constraint("DistanceY", -1, 1, 0, 2, 2.0),
    Sketcher.Constraint("DistanceX", 0, 2, -1, 1, 32.5),
])
sketch16.setExpression("Constraints[8]", "Params.sketch16_width")
sketch16.setExpression("Constraints[9]", "Params.sketch16_height")
pocket9 = body.newObject("PartDesign::Pocket", "Pocket008")
pocket9.Profile = sketch16
pocket9.setExpression("Length", "Params.pocket9_length")
pocket9.Reversed = True

doc.recompute()
